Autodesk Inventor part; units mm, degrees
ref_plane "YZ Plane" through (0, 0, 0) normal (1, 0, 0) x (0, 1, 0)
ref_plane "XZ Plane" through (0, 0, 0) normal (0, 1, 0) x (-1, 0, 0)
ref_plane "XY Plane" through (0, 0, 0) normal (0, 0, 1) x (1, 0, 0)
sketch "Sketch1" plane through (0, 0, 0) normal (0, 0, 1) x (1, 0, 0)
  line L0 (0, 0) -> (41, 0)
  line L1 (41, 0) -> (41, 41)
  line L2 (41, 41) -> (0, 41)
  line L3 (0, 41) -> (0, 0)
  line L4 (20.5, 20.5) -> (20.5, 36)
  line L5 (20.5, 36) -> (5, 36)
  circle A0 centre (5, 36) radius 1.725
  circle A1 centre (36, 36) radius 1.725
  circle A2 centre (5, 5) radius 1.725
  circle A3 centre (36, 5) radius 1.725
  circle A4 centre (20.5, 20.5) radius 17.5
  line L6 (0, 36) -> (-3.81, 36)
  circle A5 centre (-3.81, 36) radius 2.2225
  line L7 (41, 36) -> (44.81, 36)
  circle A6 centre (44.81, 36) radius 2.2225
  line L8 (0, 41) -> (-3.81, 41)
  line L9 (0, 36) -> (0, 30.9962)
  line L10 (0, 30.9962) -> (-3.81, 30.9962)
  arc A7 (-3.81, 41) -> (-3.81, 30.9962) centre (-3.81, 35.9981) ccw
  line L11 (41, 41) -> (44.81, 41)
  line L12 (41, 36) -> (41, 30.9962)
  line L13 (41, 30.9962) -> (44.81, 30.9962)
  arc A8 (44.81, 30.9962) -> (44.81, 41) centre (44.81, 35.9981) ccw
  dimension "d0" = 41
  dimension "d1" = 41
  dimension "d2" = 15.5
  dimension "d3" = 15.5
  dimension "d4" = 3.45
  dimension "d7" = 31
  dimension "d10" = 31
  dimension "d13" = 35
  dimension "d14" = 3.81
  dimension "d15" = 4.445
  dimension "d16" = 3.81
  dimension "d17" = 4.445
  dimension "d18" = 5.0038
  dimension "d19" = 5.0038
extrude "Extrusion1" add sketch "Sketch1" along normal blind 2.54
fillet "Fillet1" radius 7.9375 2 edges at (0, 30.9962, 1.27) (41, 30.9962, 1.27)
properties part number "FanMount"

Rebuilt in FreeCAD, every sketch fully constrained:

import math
import FreeCAD as App
import Part
import Sketcher
from FreeCAD import Vector
Q = App.Units.Quantity


def edges_at(feature, points):
    """Names of the edges that pass closest to the given points."""
    edges = feature.Shape.Edges
    near = lambda p: min(range(len(edges)), key=lambda i: edges[i].distToShape(Part.Vertex(*p))[0])
    return sorted({f"Edge{near(p) + 1}" for p in points})

doc = App.newDocument("Part")
body = doc.addObject("PartDesign::Body", "Body")

sketch1 = doc.addObject("Sketcher::SketchObject", "Sketch")
body.addObject(sketch1)
sketch1.AttachmentSupport = (doc.XY_Plane, [""])
sketch1.MapMode = "FlatFace"
sketch1.addGeometry([
    Part.LineSegment(Vector(0, 31, 0), Vector(0, 0, 0)),
    Part.LineSegment(Vector(0, 0, 0), Vector(41, 0, 0)),
    Part.LineSegment(Vector(41, 0, 0), Vector(41, 31, 0)),
    Part.LineSegment(Vector(41, 31, 0), Vector(44.8, 31, 0)),
    Part.ArcOfCircle(Part.Circle(Vector(44.8, 36, 0), Vector(0, 0, 1), 5), math.radians(-90), math.radians(90)),
    Part.LineSegment(Vector(44.8, 41, 0), Vector(-3.8, 41, 0)),
    Part.ArcOfCircle(Part.Circle(Vector(-3.8, 36, 0), Vector(0, 0, 1), 5), math.radians(90), math.radians(270)),
    Part.LineSegment(Vector(-3.8, 31, 0), Vector(0, 31, 0)),
    Part.Circle(Vector(5, 5, 0), Vector(0, 0, 1), 1.7),
    Part.Circle(Vector(36, 5, 0), Vector(0, 0, 1), 1.7),
    Part.Circle(Vector(5, 36, 0), Vector(0, 0, 1), 1.7),
    Part.Circle(Vector(20.5, 20.5, 0), Vector(0, 0, 1), 17.5),
    Part.Circle(Vector(36, 36, 0), Vector(0, 0, 1), 1.7),
    Part.Circle(Vector(-3.8, 36, 0), Vector(0, 0, 1), 2.2),
    Part.Circle(Vector(44.8, 36, 0), Vector(0, 0, 1), 2.2),
], False)
sketch1.addConstraint([
    Sketcher.Constraint("Coincident", 0, 2, 1, 1),
    Sketcher.Constraint("Coincident", 1, 2, 2, 1),
    Sketcher.Constraint("Coincident", 2, 2, 3, 1),
    Sketcher.Constraint("Tangent", 3, 2, 4, 1),
    Sketcher.Constraint("Tangent", 4, 2, 5, 1),
    Sketcher.Constraint("Tangent", 5, 2, 6, 1),
    Sketcher.Constraint("Tangent", 6, 2, 7, 1),
    Sketcher.Constraint("Coincident", 7, 2, 0, 1),
    Sketcher.Constraint("Vertical", 0),
    Sketcher.Constraint("Horizontal", 1),
    Sketcher.Constraint("Vertical", 2),
    Sketcher.Constraint("Horizontal", 3),
    Sketcher.Constraint("Horizontal", 5),
    Sketcher.Constraint("Horizontal", 7),
    Sketcher.Constraint("Coincident", 0, 2, -1, 1),
    Sketcher.Constraint("Equal", 4, 6),
    Sketcher.Constraint("Equal", 8, 9),
    Sketcher.Constraint("Equal", 9, 10),
    Sketcher.Constraint("Equal", 10, 12),
    Sketcher.Constraint("Equal", 13, 14),
    Sketcher.Constraint("Horizontal", 8, 3, 9, 3),
    Sketcher.Constraint("Horizontal", 10, 3, 12, 3),
    Sketcher.Constraint("Horizontal", 12, 3, 13, 3),
    Sketcher.Constraint("Horizontal", 13, 3, 14, 3),
    Sketcher.Constraint("Vertical", 8, 3, 10, 3),
    Sketcher.Constraint("Vertical", 9, 3, 12, 3),
    Sketcher.Constraint("Vertical", 6, 3, 13, 3),
    Sketcher.Constraint("Vertical", 4, 3, 14, 3),
    Sketcher.Constraint("Equal", 3, 7),
    Sketcher.Constraint("Diameter", 13, Q("0.175 in")),
    Sketcher.Constraint("DistanceX", 3, 1, 3, 2, Q("0.15 in")),
    Sketcher.Constraint("Diameter", 8, Q("3.45 mm")),
    Sketcher.Constraint("Diameter", 11, Q("35 mm")),
    Sketcher.Constraint("DistanceY", 2, 2, 14, 3, Q("0.197 in")),
    Sketcher.Constraint("DistanceX", 1, 1, 1, 2, Q("41 mm")),
    Sketcher.Constraint("DistanceY", -1, 1, 4, 2, Q("41 mm")),
    Sketcher.Constraint("Radius", 4, Q("5.002 mm")),
    Sketcher.Constraint("DistanceX", 8, 3, 9, 3, Q("31 mm")),
    Sketcher.Constraint("DistanceY", 8, 3, 10, 3, Q("31 mm")),
    Sketcher.Constraint("DistanceX", 8, 3, 11, 3, Q("15.5 mm")),
    Sketcher.Constraint("DistanceY", 8, 3, 11, 3, Q("15.5 mm")),
    Sketcher.Constraint("DistanceX", -1, 1, 8, 3, Q("5 mm")),
])
pad1 = doc.addObject("PartDesign::Pad", "Pad")
body.addObject(pad1)
pad1.Profile = sketch1
pad1.Length = Q("0.1 in")
doc.recompute()

fillet = doc.addObject("PartDesign::Fillet", "Fillet")
body.addObject(fillet)
fillet.Base = (pad1, edges_at(pad1, [(0, 30.996, 1.27), (41, 30.996, 1.27)]))
fillet.Radius = Q("0.3125 in")

doc.recompute()
